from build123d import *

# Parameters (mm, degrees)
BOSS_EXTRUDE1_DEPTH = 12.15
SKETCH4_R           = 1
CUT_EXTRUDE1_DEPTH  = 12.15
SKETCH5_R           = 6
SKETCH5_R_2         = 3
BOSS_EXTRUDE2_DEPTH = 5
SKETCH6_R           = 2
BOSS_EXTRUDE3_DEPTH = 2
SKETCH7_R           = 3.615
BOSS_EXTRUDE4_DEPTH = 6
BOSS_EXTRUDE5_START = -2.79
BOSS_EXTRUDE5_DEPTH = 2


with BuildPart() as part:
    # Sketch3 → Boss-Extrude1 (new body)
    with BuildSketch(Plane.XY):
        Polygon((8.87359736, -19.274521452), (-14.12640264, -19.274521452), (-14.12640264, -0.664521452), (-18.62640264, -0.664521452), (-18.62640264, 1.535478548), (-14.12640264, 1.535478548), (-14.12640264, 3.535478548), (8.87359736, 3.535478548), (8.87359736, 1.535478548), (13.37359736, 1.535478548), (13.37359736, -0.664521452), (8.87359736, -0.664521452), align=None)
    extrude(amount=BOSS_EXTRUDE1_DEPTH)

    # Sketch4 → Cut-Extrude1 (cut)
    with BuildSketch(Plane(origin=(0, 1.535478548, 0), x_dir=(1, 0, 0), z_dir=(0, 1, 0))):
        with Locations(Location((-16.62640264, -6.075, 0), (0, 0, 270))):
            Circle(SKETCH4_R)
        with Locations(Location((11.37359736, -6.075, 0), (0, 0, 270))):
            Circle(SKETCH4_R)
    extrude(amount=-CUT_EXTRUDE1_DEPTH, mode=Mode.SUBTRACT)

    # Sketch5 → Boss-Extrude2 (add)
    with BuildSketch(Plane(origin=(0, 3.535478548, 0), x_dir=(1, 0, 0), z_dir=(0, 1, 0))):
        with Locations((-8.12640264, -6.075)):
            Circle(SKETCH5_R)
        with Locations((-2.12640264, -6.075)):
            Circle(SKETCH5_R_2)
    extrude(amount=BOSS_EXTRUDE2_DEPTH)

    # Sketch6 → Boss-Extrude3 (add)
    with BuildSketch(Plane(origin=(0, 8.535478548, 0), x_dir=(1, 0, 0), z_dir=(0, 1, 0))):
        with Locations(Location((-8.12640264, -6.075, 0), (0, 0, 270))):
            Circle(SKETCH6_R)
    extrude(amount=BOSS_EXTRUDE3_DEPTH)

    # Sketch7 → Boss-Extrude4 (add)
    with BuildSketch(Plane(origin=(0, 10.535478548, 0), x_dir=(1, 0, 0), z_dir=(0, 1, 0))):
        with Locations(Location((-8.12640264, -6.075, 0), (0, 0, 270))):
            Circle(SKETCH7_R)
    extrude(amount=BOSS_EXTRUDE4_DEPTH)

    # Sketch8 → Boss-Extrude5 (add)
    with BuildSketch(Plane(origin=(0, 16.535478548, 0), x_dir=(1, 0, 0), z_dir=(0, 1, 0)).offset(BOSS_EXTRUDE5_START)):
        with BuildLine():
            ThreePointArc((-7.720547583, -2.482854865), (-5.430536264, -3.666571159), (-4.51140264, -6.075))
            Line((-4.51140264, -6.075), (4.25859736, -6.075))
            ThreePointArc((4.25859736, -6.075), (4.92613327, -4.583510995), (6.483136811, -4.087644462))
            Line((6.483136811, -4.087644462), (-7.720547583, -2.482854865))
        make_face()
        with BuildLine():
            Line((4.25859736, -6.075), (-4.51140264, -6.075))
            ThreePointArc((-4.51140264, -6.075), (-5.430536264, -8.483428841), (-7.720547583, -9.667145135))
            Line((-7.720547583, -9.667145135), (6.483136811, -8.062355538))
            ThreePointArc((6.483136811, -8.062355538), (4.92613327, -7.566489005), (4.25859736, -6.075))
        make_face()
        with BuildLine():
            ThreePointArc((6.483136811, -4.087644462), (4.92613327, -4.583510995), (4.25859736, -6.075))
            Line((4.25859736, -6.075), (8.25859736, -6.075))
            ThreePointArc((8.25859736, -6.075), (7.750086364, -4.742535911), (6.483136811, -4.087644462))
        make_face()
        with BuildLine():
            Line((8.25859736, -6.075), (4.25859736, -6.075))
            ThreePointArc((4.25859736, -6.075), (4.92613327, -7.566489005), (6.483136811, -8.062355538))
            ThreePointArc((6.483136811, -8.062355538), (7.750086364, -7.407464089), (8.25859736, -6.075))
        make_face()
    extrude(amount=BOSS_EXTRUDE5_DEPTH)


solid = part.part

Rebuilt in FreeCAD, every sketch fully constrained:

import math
import FreeCAD as App
import Part
import Sketcher
from FreeCAD import Vector


def add_polygon(sketch, points):
    """Adds a closed chain of lines whose ends are joined by coincident constraints."""
    first, n = sketch.GeometryCount, len(points)
    for a, b in zip(points, points[1:] + points[:1]):
        sketch.addGeometry(Part.LineSegment(App.Vector(*a, 0), App.Vector(*b, 0)), False)
    for i in range(n):
        sketch.addConstraint(Sketcher.Constraint("Coincident", first + i, 2, first + (i + 1) % n, 1))

doc = App.newDocument("Part")
body = doc.addObject("PartDesign::Body", "Body")

sketch1 = doc.addObject("Sketcher::SketchObject", "Sketch")
body.addObject(sketch1)
sketch1.AttachmentSupport = (doc.XY_Plane, [""])
sketch1.MapMode = "FlatFace"
add_polygon(sketch1, [(-14.126403, -19.274521), (8.873597, -19.274521), (8.873597, -0.664521), (13.373597, -0.664521), (13.373597, 1.535479), (8.873597, 1.535479), (8.873597, 3.535479), (-14.126403, 3.535479), (-14.126403, 1.535479), (-18.626403, 1.535479), (-18.626403, -0.664521), (-14.126403, -0.664521)])
sketch1.addConstraint(Sketcher.Constraint("Horizontal", 0))
sketch1.addConstraint(Sketcher.Constraint("Vertical", 1))
sketch1.addConstraint(Sketcher.Constraint("Horizontal", 2))
sketch1.addConstraint(Sketcher.Constraint("Vertical", 3))
sketch1.addConstraint(Sketcher.Constraint("Horizontal", 4))
sketch1.addConstraint(Sketcher.Constraint("Vertical", 5))
sketch1.addConstraint(Sketcher.Constraint("Horizontal", 6))
sketch1.addConstraint(Sketcher.Constraint("Vertical", 7))
sketch1.addConstraint(Sketcher.Constraint("Horizontal", 8))
sketch1.addConstraint(Sketcher.Constraint("Vertical", 9))
sketch1.addConstraint(Sketcher.Constraint("Horizontal", 10))
sketch1.addConstraint(Sketcher.Constraint("Vertical", 11))
sketch1.addConstraint(Sketcher.Constraint("Horizontal", 4, 2, 7, 2))
sketch1.addConstraint(Sketcher.Constraint("Horizontal", 2, 2, 9, 2))
sketch1.addConstraint(Sketcher.Constraint("Vertical", 1, 2, 4, 2))
sketch1.addConstraint(Sketcher.Constraint("Vertical", 7, 2, 10, 2))
sketch1.addConstraint(Sketcher.Constraint("Equal", 4, 8))
sketch1.addConstraint(Sketcher.Constraint("DistanceX", 0, 1, 0, 2, 23.0))
sketch1.addConstraint(Sketcher.Constraint("DistanceY", 5, 1, 5, 2, 2.0))
sketch1.addConstraint(Sketcher.Constraint("DistanceX", 2, 1, 2, 2, 4.5))
sketch1.addConstraint(Sketcher.Constraint("DistanceY", 3, 1, 3, 2, 2.2))
sketch1.addConstraint(Sketcher.Constraint("DistanceY", 1, 1, 1, 2, 18.61))
sketch1.addConstraint(Sketcher.Constraint("DistanceY", 0, 2, -1, 1, 19.274521))
sketch1.addConstraint(Sketcher.Constraint("DistanceX", -1, 1, 0, 2, 8.873597))
pad1 = doc.addObject("PartDesign::Pad", "Pad")
body.addObject(pad1)
pad1.Profile = sketch1
pad1.Length = 12.15

sketch2 = doc.addObject("Sketcher::SketchObject", "Sketch001")
body.addObject(sketch2)
sketch2.AttachmentSupport = (doc.XZ_Plane, [""])
sketch2.MapMode = "FlatFace"
sketch2.AttachmentOffset = App.Placement(Vector(0, 0, -1.535479), App.Rotation())
sketch2.addGeometry(Part.Circle(Vector(-16.626403, 6.075, 0), Vector(0, 0, 1), 1), False)
sketch2.addGeometry(Part.Circle(Vector(11.373597, 6.075, 0), Vector(0, 0, 1), 1), False)
sketch2.addConstraint(Sketcher.Constraint("Equal", 0, 1))
sketch2.addConstraint(Sketcher.Constraint("Horizontal", 0, 3, 1, 3))
sketch2.addConstraint(Sketcher.Constraint("Diameter", 0, 2.0))
sketch2.addConstraint(Sketcher.Constraint("DistanceX", 0, 3, 1, 3, 28.0))
sketch2.addConstraint(Sketcher.Constraint("DistanceY", -1, 1, 0, 3, 6.075))
sketch2.addConstraint(Sketcher.Constraint("DistanceX", 0, 3, -1, 1, 16.626403))
pocket1 = doc.addObject("PartDesign::Pocket", "Pocket")
body.addObject(pocket1)
pocket1.Profile = sketch2
pocket1.Length = 12.15
pocket1.Reversed = True

sketch3 = doc.addObject("Sketcher::SketchObject", "Sketch002")
body.addObject(sketch3)
sketch3.AttachmentSupport = (doc.XZ_Plane, [""])
sketch3.MapMode = "FlatFace"
sketch3.AttachmentOffset = App.Placement(Vector(0, 0, -3.535479), App.Rotation())
sketch3.addGeometry(Part.ArcOfCircle(Part.Circle(Vector(-2.126403, 6.075, 0), Vector(0, 0, 1), 3), math.radians(-104.477512), math.radians(104.477512)), False)
sketch3.addGeometry(Part.ArcOfCircle(Part.Circle(Vector(-8.126403, 6.075, 0), Vector(0, 0, 1), 6), math.radians(28.955024), math.radians(331.044976)), False)
sketch3.addConstraint(Sketcher.Constraint("Coincident", 0, 1, 1, 2))
sketch3.addConstraint(Sketcher.Constraint("Coincident", 1, 1, 0, 2))
sketch3.addConstraint(Sketcher.Constraint("Horizontal", 0, 3, 1, 3))
sketch3.addConstraint(Sketcher.Constraint("Radius", 0, 3.0))
sketch3.addConstraint(Sketcher.Constraint("Radius", 1, 6.0))
sketch3.addConstraint(Sketcher.Constraint("DistanceX", 1, 3, 0, 3, 6.0))
sketch3.addConstraint(Sketcher.Constraint("DistanceY", -1, 1, 0, 3, 6.075))
sketch3.addConstraint(Sketcher.Constraint("DistanceX", 0, 3, -1, 1, 2.126403))
pad2 = doc.addObject("PartDesign::Pad", "Pad001")
body.addObject(pad2)
pad2.Profile = sketch3
pad2.Length = 5
pad2.Reversed = True

sketch4 = doc.addObject("Sketcher::SketchObject", "Sketch003")
body.addObject(sketch4)
sketch4.AttachmentSupport = (doc.XZ_Plane, [""])
sketch4.MapMode = "FlatFace"
sketch4.AttachmentOffset = App.Placement(Vector(0, 0, -8.535479), App.Rotation())
sketch4.addGeometry(Part.Circle(Vector(-8.126403, 6.075, 0), Vector(0, 0, 1), 2), False)
sketch4.addConstraint(Sketcher.Constraint("Diameter", 0, 4.0))
sketch4.addConstraint(Sketcher.Constraint("DistanceY", -1, 1, 0, 3, 6.075))
sketch4.addConstraint(Sketcher.Constraint("DistanceX", 0, 3, -1, 1, 8.126403))
pad3 = doc.addObject("PartDesign::Pad", "Pad002")
body.addObject(pad3)
pad3.Profile = sketch4
pad3.Length = 2
pad3.Reversed = True

sketch5 = doc.addObject("Sketcher::SketchObject", "Sketch004")
body.addObject(sketch5)
sketch5.AttachmentSupport = (doc.XZ_Plane, [""])
sketch5.MapMode = "FlatFace"
sketch5.AttachmentOffset = App.Placement(Vector(0, 0, -10.535479), App.Rotation())
sketch5.addGeometry(Part.Circle(Vector(-8.126403, 6.075, 0), Vector(0, 0, 1), 3.615), False)
sketch5.addConstraint(Sketcher.Constraint("Diameter", 0, 7.23))
sketch5.addConstraint(Sketcher.Constraint("DistanceY", -1, 1, 0, 3, 6.075))
sketch5.addConstraint(Sketcher.Constraint("DistanceX", 0, 3, -1, 1, 8.126403))
pad4 = doc.addObject("PartDesign::Pad", "Pad003")
body.addObject(pad4)
pad4.Profile = sketch5
pad4.Length = 6
pad4.Reversed = True

sketch6 = doc.addObject("Sketcher::SketchObject", "Sketch005")
body.addObject(sketch6)
sketch6.AttachmentSupport = (doc.XZ_Plane, [""])
sketch6.MapMode = "FlatFace"
sketch6.AttachmentOffset = App.Placement(Vector(0, 0, -13.745479), App.Rotation())
sketch6.addGeometry(Part.ArcOfCircle(Part.Circle(Vector(6.258597, 6.075, 0), Vector(0, 0, 1), 2), math.radians(-83.553828), math.radians(0)), False)
sketch6.addGeometry(Part.LineSegment(Vector(6.483137, 4.087644, 0), Vector(-7.720548, 2.482855, 0)), False)
sketch6.addGeometry(Part.ArcOfCircle(Part.Circle(Vector(-8.126403, 6.075, 0), Vector(0, 0, 1), 3.615), math.radians(-83.553828), math.radians(0)), False)
sketch6.addGeometry(Part.ArcOfCircle(Part.Circle(Vector(-8.126403, 6.075, 0), Vector(0, 0, 1), 3.615), math.radians(0), math.radians(83.553828)), False)
sketch6.addGeometry(Part.LineSegment(Vector(-7.720548, 9.667145, 0), Vector(6.483137, 8.062356, 0)), False)
sketch6.addGeometry(Part.ArcOfCircle(Part.Circle(Vector(6.258597, 6.075, 0), Vector(0, 0, 1), 2), math.radians(0), math.radians(83.553828)), False)
sketch6.addConstraint(Sketcher.Constraint("Tangent", 0, 1, 1, 1))
sketch6.addConstraint(Sketcher.Constraint("Tangent", 1, 2, 2, 1))
sketch6.addConstraint(Sketcher.Constraint("Tangent", 2, 2, 3, 1))
sketch6.addConstraint(Sketcher.Constraint("Tangent", 3, 2, 4, 1))
sketch6.addConstraint(Sketcher.Constraint("Tangent", 4, 2, 5, 2))
sketch6.addConstraint(Sketcher.Constraint("Tangent", 5, 1, 0, 2))
sketch6.addConstraint(Sketcher.Constraint("Equal", 2, 3))
sketch6.addConstraint(Sketcher.Constraint("Equal", 0, 5))
sketch6.addConstraint(Sketcher.Constraint("Horizontal", 0, 3, 2, 3))
sketch6.addConstraint(Sketcher.Constraint("Horizontal", 5, 3, 2, 2))
sketch6.addConstraint(Sketcher.Constraint("Horizontal", 2, 2, 5, 1))
sketch6.addConstraint(Sketcher.Constraint("Radius", 0, 2.0))
sketch6.addConstraint(Sketcher.Constraint("Radius", 2, 3.615))
sketch6.addConstraint(Sketcher.Constraint("DistanceX", 2, 2, 0, 3, 10.77))
sketch6.addConstraint(Sketcher.Constraint("DistanceY", -1, 1, 0, 3, 6.075))
sketch6.addConstraint(Sketcher.Constraint("DistanceX", -1, 1, 0, 3, 6.258597))
pad5 = doc.addObject("PartDesign::Pad", "Pad004")
body.addObject(pad5)
pad5.Profile = sketch6
pad5.Length = 2
pad5.Reversed = True

doc.recompute()
